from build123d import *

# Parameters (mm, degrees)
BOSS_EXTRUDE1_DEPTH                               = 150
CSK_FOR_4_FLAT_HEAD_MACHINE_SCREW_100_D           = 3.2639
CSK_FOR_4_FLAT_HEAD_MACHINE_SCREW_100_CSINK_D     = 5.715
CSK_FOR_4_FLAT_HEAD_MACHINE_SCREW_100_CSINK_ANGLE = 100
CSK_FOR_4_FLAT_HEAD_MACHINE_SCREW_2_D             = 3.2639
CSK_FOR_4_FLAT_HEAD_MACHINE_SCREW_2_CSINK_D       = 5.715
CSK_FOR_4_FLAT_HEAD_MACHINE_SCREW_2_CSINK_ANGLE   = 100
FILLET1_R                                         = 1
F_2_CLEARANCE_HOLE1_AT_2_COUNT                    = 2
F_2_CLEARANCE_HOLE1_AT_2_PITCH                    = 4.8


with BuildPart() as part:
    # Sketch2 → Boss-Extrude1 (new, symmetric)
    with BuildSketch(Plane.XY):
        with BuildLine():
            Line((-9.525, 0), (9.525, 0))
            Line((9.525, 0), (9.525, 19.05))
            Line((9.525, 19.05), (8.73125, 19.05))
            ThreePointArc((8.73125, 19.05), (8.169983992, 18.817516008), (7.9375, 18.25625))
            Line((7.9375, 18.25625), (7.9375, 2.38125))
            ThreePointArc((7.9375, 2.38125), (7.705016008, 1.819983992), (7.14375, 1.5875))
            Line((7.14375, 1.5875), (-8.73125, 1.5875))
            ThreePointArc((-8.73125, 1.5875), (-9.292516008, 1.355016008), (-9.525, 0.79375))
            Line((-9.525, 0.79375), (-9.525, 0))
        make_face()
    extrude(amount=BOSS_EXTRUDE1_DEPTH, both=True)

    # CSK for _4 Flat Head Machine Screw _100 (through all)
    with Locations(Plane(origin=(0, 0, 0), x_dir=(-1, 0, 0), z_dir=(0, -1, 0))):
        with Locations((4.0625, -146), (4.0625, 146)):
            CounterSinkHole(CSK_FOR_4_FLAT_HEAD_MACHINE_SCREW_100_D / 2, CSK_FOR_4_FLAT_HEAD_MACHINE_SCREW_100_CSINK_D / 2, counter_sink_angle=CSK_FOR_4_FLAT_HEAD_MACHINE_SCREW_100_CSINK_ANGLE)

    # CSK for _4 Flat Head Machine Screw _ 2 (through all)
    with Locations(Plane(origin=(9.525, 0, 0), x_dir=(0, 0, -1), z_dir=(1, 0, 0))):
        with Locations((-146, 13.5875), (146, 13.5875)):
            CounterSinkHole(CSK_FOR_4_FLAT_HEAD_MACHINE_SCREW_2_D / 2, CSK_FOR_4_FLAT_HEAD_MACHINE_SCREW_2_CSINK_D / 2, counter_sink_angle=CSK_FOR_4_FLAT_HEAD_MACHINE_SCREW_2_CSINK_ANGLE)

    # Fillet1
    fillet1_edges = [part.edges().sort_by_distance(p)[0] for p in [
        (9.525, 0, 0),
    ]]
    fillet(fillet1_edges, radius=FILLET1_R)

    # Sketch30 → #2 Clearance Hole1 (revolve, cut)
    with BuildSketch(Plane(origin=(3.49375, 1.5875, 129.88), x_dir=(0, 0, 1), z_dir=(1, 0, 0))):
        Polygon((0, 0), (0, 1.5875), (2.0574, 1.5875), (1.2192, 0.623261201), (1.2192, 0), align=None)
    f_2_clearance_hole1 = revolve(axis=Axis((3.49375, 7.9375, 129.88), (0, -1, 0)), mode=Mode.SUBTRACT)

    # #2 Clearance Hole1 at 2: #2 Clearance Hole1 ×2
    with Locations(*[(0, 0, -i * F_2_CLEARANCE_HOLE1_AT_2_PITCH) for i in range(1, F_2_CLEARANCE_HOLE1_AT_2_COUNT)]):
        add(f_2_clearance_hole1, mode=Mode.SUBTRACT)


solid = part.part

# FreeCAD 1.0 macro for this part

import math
import FreeCAD as App
import Part
import Sketcher
from FreeCAD import Vector
Q = App.Units.Quantity


def edges_at(feature, points):
    """Names of the edges that pass closest to the given points."""
    edges = feature.Shape.Edges
    near = lambda p: min(range(len(edges)), key=lambda i: edges[i].distToShape(Part.Vertex(*p))[0])
    return sorted({f"Edge{near(p) + 1}" for p in points})

doc = App.newDocument("Part")
body = doc.addObject("PartDesign::Body", "Body")

# Sketch on XY plane
sketch1 = doc.addObject("Sketcher::SketchObject", "Sketch")
body.addObject(sketch1)
sketch1.AttachmentSupport = (doc.XY_Plane, [""])
sketch1.MapMode = "FlatFace"
sketch1.addGeometry(Part.LineSegment(Vector(-9.525, 0, 0), Vector(9.525, 0, 0)), False)
sketch1.addGeometry(Part.LineSegment(Vector(9.525, 0, 0), Vector(9.525, 19.05, 0)), False)
sketch1.addGeometry(Part.LineSegment(Vector(9.525, 19.05, 0), Vector(8.73125, 19.05, 0)), False)
sketch1.addGeometry(Part.ArcOfCircle(Part.Circle(Vector(8.73125, 18.25625, 0), Vector(0, 0, 1), 0.79375), math.radians(90), math.radians(180)), False)
sketch1.addGeometry(Part.LineSegment(Vector(7.9375, 18.25625, 0), Vector(7.9375, 2.38125, 0)), False)
sketch1.addGeometry(Part.ArcOfCircle(Part.Circle(Vector(7.14375, 2.38125, 0), Vector(0, 0, 1), 0.79375), math.radians(-90), math.radians(0)), False)
sketch1.addGeometry(Part.LineSegment(Vector(7.14375, 1.5875, 0), Vector(-8.73125, 1.5875, 0)), False)
sketch1.addGeometry(Part.ArcOfCircle(Part.Circle(Vector(-8.73125, 0.79375, 0), Vector(0, 0, 1), 0.79375), math.radians(90), math.radians(180)), False)
sketch1.addGeometry(Part.LineSegment(Vector(-9.525, 0.79375, 0), Vector(-9.525, 0, 0)), False)
sketch1.addConstraint(Sketcher.Constraint("Coincident", 0, 2, 1, 1))
sketch1.addConstraint(Sketcher.Constraint("Coincident", 1, 2, 2, 1))
sketch1.addConstraint(Sketcher.Constraint("Tangent", 2, 2, 3, 1))
sketch1.addConstraint(Sketcher.Constraint("Tangent", 3, 2, 4, 1))
sketch1.addConstraint(Sketcher.Constraint("Tangent", 4, 2, 5, 2))
sketch1.addConstraint(Sketcher.Constraint("Tangent", 5, 1, 6, 1))
sketch1.addConstraint(Sketcher.Constraint("Tangent", 6, 2, 7, 1))
sketch1.addConstraint(Sketcher.Constraint("Tangent", 7, 2, 8, 1))
sketch1.addConstraint(Sketcher.Constraint("Coincident", 8, 2, 0, 1))
sketch1.addConstraint(Sketcher.Constraint("Horizontal", 0))
sketch1.addConstraint(Sketcher.Constraint("Vertical", 1))
sketch1.addConstraint(Sketcher.Constraint("Horizontal", 2))
sketch1.addConstraint(Sketcher.Constraint("Vertical", 4))
sketch1.addConstraint(Sketcher.Constraint("Horizontal", 6))
sketch1.addConstraint(Sketcher.Constraint("Vertical", 8))
sketch1.addConstraint(Sketcher.Constraint("Equal", 3, 5))
sketch1.addConstraint(Sketcher.Constraint("Equal", 5, 7))
sketch1.addConstraint(Sketcher.Constraint("Symmetric", 0, 2, 8, 2, -1, 1))
sketch1.addConstraint(Sketcher.Constraint("Equal", 0, 1))
sketch1.addConstraint(Sketcher.Constraint("Equal", 6, 4))
sketch1.addConstraint(Sketcher.Constraint("Radius", 3, Q("0.03125 in")))
sketch1.addConstraint(Sketcher.Constraint("DistanceX", 0, 1, 0, 2, Q("0.75 in")))
sketch1.addConstraint(Sketcher.Constraint("DistanceX", 2, 2, 2, 1, Q("0.03125 in")))
pad1 = doc.addObject("PartDesign::Pad", "Pad")
body.addObject(pad1)
pad1.Profile = sketch1
pad1.Length = 300
pad1.Midplane = True

# Sketch on XZ plane
sketch2 = doc.addObject("Sketcher::SketchObject", "Sketch001")
body.addObject(sketch2)
sketch2.AttachmentSupport = (doc.XZ_Plane, [""])
sketch2.MapMode = "FlatFace"
sketch2.addGeometry(Part.Circle(Vector(-4.0625, 146, 0), Vector(0, 0, 1), 1.63195), False)
sketch2.addGeometry(Part.Circle(Vector(-4.0625, -146, 0), Vector(0, 0, 1), 1.63195), False)
sketch2.addConstraint(Sketcher.Constraint("Equal", 0, 1))
sketch2.addConstraint(Sketcher.Constraint("Symmetric", 0, 3, 1, 3, -1))
sketch2.addConstraint(Sketcher.Constraint("Diameter", 0, Q("0.1285 in")))
sketch2.addConstraint(Sketcher.Constraint("DistanceX", 0, 3, -1, 1, Q("4.0625 mm")))
sketch2.addConstraint(Sketcher.Constraint("DistanceY", -1, 1, 0, 3, Q("146 mm")))
doc.recompute()
hole = doc.addObject("PartDesign::Hole", "Hole")
body.addObject(hole)
hole.Profile = sketch2
hole.ThreadType = "None"
hole.Diameter = Q("0.1285 in")
hole.DepthType = "ThroughAll"
hole.HoleCutType = "Countersink"
hole.HoleCutDiameter = Q("0.225 in")
hole.HoleCutCountersinkAngle = 100

# Sketch on YZ plane
sketch3 = doc.addObject("Sketcher::SketchObject", "Sketch002")
body.addObject(sketch3)
sketch3.AttachmentSupport = (doc.YZ_Plane, [""])
sketch3.MapMode = "FlatFace"
sketch3.AttachmentOffset = App.Placement(Vector(0, 0, 0.375 * 25.4), App.Rotation())
sketch3.addGeometry(Part.Circle(Vector(13.5875, 146, 0), Vector(0, 0, 1), 1.63195), False)
sketch3.addGeometry(Part.Circle(Vector(13.5875, -146, 0), Vector(0, 0, 1), 1.63195), False)
sketch3.addConstraint(Sketcher.Constraint("Equal", 0, 1))
sketch3.addConstraint(Sketcher.Constraint("Symmetric", 0, 3, 1, 3, -1))
sketch3.addConstraint(Sketcher.Constraint("Diameter", 0, Q("0.1285 in")))
sketch3.addConstraint(Sketcher.Constraint("DistanceX", -1, 1, 0, 3, Q("13.5875 mm")))
sketch3.addConstraint(Sketcher.Constraint("DistanceY", -1, 1, 0, 3, Q("146 mm")))
doc.recompute()
hole2 = doc.addObject("PartDesign::Hole", "Hole001")
body.addObject(hole2)
hole2.Profile = sketch3
hole2.ThreadType = "None"
hole2.Diameter = Q("0.1285 in")
hole2.DepthType = "ThroughAll"
hole2.HoleCutType = "Countersink"
hole2.HoleCutDiameter = Q("0.225 in")
hole2.HoleCutCountersinkAngle = 100
doc.recompute()

fillet = doc.addObject("PartDesign::Fillet", "Fillet")
body.addObject(fillet)
fillet.Base = (hole2, edges_at(hole2, [(9.525, 0, 0)]))
fillet.Radius = 1

# Sketch on YZ plane
sketch4 = doc.addObject("Sketcher::SketchObject", "Sketch003")
body.addObject(sketch4)
sketch4.AttachmentSupport = (doc.YZ_Plane, [""])
sketch4.MapMode = "FlatFace"
sketch4.AttachmentOffset = App.Placement(Vector(0, 0, 3.49375), App.Rotation())
sketch4.addGeometry(Part.LineSegment(Vector(0, 129.88, 0), Vector(1.5875, 129.88, 0)), False)
sketch4.addGeometry(Part.LineSegment(Vector(1.5875, 129.88, 0), Vector(1.5875, 131.0992, 0)), False)
sketch4.addGeometry(Part.LineSegment(Vector(1.5875, 131.0992, 0), Vector(0.964239, 131.0992, 0)), False)
sketch4.addGeometry(Part.LineSegment(Vector(0.964239, 131.0992, 0), Vector(0, 131.9374, 0)), False)
sketch4.addGeometry(Part.LineSegment(Vector(0, 131.9374, 0), Vector(0, 129.88, 0)), False)
sketch4.addGeometry(Part.LineSegment(Vector(1.5875, 129.88, 0), Vector(0, 129.88, 0)), True)  # axis
sketch4.addConstraint(Sketcher.Constraint("Coincident", 0, 2, 1, 1))
sketch4.addConstraint(Sketcher.Constraint("Coincident", 1, 2, 2, 1))
sketch4.addConstraint(Sketcher.Constraint("Coincident", 2, 2, 3, 1))
sketch4.addConstraint(Sketcher.Constraint("Coincident", 3, 2, 4, 1))
sketch4.addConstraint(Sketcher.Constraint("Coincident", 4, 2, 0, 1))
sketch4.addConstraint(Sketcher.Constraint("Horizontal", 0))
sketch4.addConstraint(Sketcher.Constraint("Vertical", 1))
sketch4.addConstraint(Sketcher.Constraint("Horizontal", 2))
sketch4.addConstraint(Sketcher.Constraint("Vertical", 4))
sketch4.addConstraint(Sketcher.Constraint("Horizontal", 5))
sketch4.addConstraint(Sketcher.Constraint("Coincident", 5, 1, 0, 2))
sketch4.addConstraint(Sketcher.Constraint("PointOnObject", 3, 2, -2))
sketch4.addConstraint(Sketcher.Constraint("PointOnObject", 5, 2, -2))
sketch4.addConstraint(Sketcher.Constraint("Angle", 3, Q("139 deg")))
sketch4.addConstraint(Sketcher.Constraint("DistanceX", 0, 1, 0, 2, Q("0.0625 in")))
sketch4.addConstraint(Sketcher.Constraint("DistanceY", 1, 1, 1, 2, Q("0.048 in")))
sketch4.addConstraint(Sketcher.Constraint("DistanceY", 4, 2, 4, 1, Q("0.081 in")))
sketch4.addConstraint(Sketcher.Constraint("DistanceY", -1, 1, 0, 2, Q("129.88 mm")))
groove = doc.addObject("PartDesign::Groove", "Groove")
body.addObject(groove)
groove.Profile = sketch4
groove.ReferenceAxis = (sketch4, ["Axis0"])
groove.Angle = 360
doc.recompute()

linearpattern = doc.addObject("PartDesign::LinearPattern", "LinearPattern")
body.addObject(linearpattern)
linearpattern.Originals = [groove]
linearpattern.Direction = (doc.Z_Axis, [""])
linearpattern.Mode = "offset"
linearpattern.Offset = 4.8
linearpattern.Occurrences = 2
linearpattern.Reversed = True
body.Tip = linearpattern

doc.recompute()
